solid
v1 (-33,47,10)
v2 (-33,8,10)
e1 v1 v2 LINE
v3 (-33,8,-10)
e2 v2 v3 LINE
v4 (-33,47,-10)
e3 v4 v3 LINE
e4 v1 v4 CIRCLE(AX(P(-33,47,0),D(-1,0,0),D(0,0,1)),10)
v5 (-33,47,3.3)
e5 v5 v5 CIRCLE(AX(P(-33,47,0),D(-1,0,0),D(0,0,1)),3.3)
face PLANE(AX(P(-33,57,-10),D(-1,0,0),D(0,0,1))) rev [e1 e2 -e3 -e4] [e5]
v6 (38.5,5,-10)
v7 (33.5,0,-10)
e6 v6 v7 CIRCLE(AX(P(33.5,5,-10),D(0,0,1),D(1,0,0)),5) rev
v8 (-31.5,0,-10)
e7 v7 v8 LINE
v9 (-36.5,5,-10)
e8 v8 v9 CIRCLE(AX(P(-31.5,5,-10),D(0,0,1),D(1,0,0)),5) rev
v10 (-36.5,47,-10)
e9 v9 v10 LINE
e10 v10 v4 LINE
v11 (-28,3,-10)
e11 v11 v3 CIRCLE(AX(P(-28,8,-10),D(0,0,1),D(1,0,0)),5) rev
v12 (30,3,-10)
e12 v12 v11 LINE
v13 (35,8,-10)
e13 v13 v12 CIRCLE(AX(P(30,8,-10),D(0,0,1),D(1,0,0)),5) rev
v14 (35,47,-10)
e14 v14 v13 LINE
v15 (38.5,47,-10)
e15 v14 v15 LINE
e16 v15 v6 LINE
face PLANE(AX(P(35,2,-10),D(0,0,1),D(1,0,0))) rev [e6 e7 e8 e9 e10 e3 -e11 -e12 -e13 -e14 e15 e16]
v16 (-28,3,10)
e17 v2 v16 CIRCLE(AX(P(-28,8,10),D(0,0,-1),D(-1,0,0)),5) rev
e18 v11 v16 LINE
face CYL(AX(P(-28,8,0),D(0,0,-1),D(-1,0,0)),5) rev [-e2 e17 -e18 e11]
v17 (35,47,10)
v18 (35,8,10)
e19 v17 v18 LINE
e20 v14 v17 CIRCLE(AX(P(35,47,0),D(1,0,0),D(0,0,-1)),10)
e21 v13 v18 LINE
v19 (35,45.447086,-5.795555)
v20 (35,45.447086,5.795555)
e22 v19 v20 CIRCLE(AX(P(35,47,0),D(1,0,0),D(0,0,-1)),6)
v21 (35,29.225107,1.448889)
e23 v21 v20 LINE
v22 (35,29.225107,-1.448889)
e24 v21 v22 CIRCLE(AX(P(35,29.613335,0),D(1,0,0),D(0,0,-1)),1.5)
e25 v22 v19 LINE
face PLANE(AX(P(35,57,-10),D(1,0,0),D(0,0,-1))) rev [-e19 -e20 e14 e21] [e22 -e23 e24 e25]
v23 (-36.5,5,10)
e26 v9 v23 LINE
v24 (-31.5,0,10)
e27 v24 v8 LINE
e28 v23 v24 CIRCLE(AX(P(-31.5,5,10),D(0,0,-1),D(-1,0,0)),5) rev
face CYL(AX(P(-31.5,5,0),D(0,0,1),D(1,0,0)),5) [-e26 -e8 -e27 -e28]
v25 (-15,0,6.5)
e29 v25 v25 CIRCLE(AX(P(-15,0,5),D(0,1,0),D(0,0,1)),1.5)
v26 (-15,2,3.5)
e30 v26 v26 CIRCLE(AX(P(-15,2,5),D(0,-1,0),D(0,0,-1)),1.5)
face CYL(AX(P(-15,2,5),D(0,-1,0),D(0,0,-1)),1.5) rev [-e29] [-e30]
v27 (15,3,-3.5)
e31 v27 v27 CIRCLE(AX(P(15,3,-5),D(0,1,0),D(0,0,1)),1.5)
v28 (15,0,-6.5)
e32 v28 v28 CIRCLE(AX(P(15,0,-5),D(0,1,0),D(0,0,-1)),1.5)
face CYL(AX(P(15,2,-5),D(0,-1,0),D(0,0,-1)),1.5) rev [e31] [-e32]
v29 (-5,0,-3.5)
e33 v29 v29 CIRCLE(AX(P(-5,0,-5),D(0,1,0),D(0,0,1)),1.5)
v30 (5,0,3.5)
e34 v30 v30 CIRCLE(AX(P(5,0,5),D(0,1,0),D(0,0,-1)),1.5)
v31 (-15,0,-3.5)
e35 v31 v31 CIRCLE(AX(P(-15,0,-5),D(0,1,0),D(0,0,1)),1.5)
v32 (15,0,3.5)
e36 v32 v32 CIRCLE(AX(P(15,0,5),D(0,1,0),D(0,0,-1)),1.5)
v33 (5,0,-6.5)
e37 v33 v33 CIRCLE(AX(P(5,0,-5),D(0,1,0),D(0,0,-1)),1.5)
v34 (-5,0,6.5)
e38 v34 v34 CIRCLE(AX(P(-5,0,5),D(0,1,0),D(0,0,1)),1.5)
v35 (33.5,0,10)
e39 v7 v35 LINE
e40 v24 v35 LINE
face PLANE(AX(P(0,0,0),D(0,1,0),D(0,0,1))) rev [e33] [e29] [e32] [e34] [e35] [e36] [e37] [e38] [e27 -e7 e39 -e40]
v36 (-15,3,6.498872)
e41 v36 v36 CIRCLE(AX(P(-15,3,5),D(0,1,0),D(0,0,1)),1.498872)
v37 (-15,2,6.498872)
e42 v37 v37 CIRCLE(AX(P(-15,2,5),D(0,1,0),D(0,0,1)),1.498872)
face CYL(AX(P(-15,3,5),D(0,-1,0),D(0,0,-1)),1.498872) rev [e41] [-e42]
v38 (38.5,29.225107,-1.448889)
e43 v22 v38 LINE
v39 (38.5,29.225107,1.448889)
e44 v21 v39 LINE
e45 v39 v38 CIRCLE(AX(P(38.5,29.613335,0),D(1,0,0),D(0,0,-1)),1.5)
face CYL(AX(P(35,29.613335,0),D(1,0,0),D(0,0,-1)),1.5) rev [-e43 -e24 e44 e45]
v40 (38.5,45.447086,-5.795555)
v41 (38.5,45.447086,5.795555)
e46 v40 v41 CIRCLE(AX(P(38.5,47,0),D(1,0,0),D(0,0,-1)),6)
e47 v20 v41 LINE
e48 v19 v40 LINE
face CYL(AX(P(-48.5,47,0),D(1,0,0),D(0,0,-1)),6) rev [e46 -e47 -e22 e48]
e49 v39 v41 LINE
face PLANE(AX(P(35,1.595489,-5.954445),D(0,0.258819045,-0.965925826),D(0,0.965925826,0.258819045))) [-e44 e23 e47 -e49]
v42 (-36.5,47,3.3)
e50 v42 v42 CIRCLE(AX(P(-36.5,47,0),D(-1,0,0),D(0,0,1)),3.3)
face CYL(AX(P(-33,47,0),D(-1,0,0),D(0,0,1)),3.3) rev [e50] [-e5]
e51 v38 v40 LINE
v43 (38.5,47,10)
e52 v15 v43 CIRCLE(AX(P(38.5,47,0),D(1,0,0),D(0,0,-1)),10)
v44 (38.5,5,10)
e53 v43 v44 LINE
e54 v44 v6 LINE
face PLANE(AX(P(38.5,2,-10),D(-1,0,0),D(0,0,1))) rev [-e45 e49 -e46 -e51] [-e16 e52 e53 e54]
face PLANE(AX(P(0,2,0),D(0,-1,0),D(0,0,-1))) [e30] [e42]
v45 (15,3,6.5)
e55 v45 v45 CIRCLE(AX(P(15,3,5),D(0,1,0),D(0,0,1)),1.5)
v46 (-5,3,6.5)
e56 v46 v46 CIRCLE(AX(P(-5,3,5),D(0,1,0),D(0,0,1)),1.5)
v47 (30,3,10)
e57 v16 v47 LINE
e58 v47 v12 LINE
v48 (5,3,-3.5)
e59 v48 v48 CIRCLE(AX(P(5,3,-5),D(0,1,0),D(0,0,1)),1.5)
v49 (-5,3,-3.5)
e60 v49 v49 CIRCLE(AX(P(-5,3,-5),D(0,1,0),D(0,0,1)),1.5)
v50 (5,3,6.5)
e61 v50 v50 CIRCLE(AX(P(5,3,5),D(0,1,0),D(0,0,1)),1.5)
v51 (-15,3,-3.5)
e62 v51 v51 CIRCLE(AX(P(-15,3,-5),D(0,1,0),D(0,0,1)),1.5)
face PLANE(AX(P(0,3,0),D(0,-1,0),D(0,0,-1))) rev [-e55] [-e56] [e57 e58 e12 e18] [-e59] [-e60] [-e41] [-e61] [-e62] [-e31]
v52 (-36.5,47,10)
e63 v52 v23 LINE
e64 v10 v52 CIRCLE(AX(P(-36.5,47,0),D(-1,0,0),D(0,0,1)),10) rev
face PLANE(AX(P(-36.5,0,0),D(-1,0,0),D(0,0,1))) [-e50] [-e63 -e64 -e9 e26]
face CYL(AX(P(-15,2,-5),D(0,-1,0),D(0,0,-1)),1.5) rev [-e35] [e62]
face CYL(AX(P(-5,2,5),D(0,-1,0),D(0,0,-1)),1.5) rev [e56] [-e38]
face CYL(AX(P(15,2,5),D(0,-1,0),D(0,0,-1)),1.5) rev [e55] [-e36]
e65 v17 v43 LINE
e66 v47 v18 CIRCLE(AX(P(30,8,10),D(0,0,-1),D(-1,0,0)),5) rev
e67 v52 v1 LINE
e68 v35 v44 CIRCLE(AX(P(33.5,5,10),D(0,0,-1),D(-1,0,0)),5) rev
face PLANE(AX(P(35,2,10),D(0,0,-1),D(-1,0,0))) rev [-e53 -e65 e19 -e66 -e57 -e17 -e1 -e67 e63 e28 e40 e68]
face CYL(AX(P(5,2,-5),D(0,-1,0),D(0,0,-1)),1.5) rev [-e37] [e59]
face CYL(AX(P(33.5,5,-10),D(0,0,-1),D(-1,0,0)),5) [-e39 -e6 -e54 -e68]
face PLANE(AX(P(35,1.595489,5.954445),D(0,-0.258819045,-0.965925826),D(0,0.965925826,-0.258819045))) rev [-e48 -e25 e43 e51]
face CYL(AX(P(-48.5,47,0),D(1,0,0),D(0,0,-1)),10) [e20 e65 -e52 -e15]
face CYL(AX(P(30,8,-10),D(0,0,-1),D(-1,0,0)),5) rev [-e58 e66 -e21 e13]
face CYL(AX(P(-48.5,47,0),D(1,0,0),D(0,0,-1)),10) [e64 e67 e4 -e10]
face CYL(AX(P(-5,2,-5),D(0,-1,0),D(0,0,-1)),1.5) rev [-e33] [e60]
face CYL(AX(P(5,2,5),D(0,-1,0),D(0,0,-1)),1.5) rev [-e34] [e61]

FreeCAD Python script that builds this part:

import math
import FreeCAD as App
import Part
import Sketcher

V = App.Vector
Q = App.Units.Quantity


def edges_at(feature, points):
    """Names of the edges that pass closest to the given points."""
    edges = feature.Shape.Edges
    near = lambda p: min(range(len(edges)), key=lambda i: edges[i].distToShape(Part.Vertex(*p))[0])
    return sorted({f"Edge{near(p) + 1}" for p in points})

doc = App.newDocument("Part")
body = doc.addObject("PartDesign::Body", "Body")

# Sketch on XZ plane
sketch1 = body.newObject("Sketcher::SketchObject", "Sketch")
sketch1.AttachmentSupport = (doc.getObject("XZ_Plane"), [""])
sketch1.MapMode = "FlatFace"
sketch1.addGeometry([
    Part.LineSegment(V(-35, 10, 0), V(38.5, 10, 0)),  # 0
    Part.LineSegment(V(38.5, 10, 0), V(38.5, -10, 0)),  # 1
    Part.LineSegment(V(38.5, -10, 0), V(-35, -10, 0)),  # 2
    Part.LineSegment(V(-35, -10, 0), V(-35, 10, 0)),  # 3
    Part.Circle(V(15, 5, 0), V(0, 0, 1), 1.5),  # 4
    Part.Circle(V(5, 5, 0), V(0, 0, 1), 1.5),  # 5
    Part.Circle(V(-5, 5, 0), V(0, 0, 1), 1.5),  # 6
    Part.Circle(V(-15, 5, 0), V(0, 0, 1), 1.5),  # 7
    Part.Circle(V(15, -5, 0), V(0, 0, 1), 1.5),  # 8
    Part.Circle(V(5, -5, 0), V(0, 0, 1), 1.5),  # 9
    Part.Circle(V(-5, -5, 0), V(0, 0, 1), 1.5),  # 10
    Part.Circle(V(-15, -5, 0), V(0, 0, 1), 1.5),  # 11
], False)
sketch1.addConstraint([
    Sketcher.Constraint("Coincident", 0, 2, 1, 1),
    Sketcher.Constraint("Coincident", 1, 2, 2, 1),
    Sketcher.Constraint("Coincident", 2, 2, 3, 1),
    Sketcher.Constraint("Coincident", 3, 2, 0, 1),
    Sketcher.Constraint("Horizontal", 0),
    Sketcher.Constraint("Vertical", 1),
    Sketcher.Constraint("Horizontal", 2),
    Sketcher.Constraint("Vertical", 3),
    Sketcher.Constraint("Equal", 4, 5),
    Sketcher.Constraint("Equal", 5, 6),
    Sketcher.Constraint("Equal", 6, 7),
    Sketcher.Constraint("Equal", 7, 8),
    Sketcher.Constraint("Equal", 8, 9),
    Sketcher.Constraint("Equal", 9, 10),
    Sketcher.Constraint("Equal", 10, 11),
    Sketcher.Constraint("Symmetric", 7, 3, 8, 3, -1, 1),
    Sketcher.Constraint("Symmetric", 6, 3, 9, 3, -1, 1),
    Sketcher.Constraint("Symmetric", 5, 3, 10, 3, -1, 1),
    Sketcher.Constraint("Symmetric", 4, 3, 11, 3, -1, 1),
    Sketcher.Constraint("Symmetric", 5, 3, 6, 3, -2),
    Sketcher.Constraint("Symmetric", 4, 3, 7, 3, -2),
    Sketcher.Constraint("Horizontal", 4, 3, 5, 3),
    Sketcher.Constraint("Diameter", 4, Q("3 mm")),
    Sketcher.Constraint("DistanceY", 1, 2, 1, 1, Q("20 mm")),
    Sketcher.Constraint("DistanceX", 0, 1, 0, 2, Q("73.5 mm")),
    Sketcher.Constraint("DistanceX", -1, 1, 4, 3, Q("15 mm")),
    Sketcher.Constraint("DistanceY", -1, 1, 4, 3, Q("5 mm")),
    Sketcher.Constraint("DistanceX", -1, 1, 5, 3, Q("5 mm")),
    Sketcher.Constraint("DistanceY", -1, 1, 0, 2, Q("10 mm")),
    Sketcher.Constraint("DistanceX", 2, 2, -1, 1, Q("35 mm")),
])
pad1 = body.newObject("PartDesign::Pad", "Pad")
pad1.Profile = sketch1
pad1.Length = 2
pad1.Reversed = True

# Sketch on XZ plane
sketch2 = body.newObject("Sketcher::SketchObject", "Sketch001")
sketch2.AttachmentSupport = (doc.getObject("XZ_Plane"), [""])
sketch2.MapMode = "FlatFace"
sketch2.AttachmentOffset = App.Placement(V(0, 0, -2), App.Rotation())
sketch2.addGeometry([
    Part.LineSegment(V(-35, -10, 0), V(-35, 10, 0)),  # 0
    Part.LineSegment(V(-35, 10, 0), V(-33, 10, 0)),  # 1
    Part.LineSegment(V(-33, 10, 0), V(-33, -10, 0)),  # 2
    Part.LineSegment(V(-33, -10, 0), V(-35, -10, 0)),  # 3
    Part.LineSegment(V(35, -10, 0), V(35, 10, 0)),  # 4
    Part.LineSegment(V(35, 10, 0), V(38.5, 10, 0)),  # 5
    Part.LineSegment(V(38.5, 10, 0), V(38.5, -10, 0)),  # 6
    Part.LineSegment(V(38.5, -10, 0), V(35, -10, 0)),  # 7
], False)
sketch2.addConstraint([
    Sketcher.Constraint("Coincident", 0, 2, 1, 1),
    Sketcher.Constraint("Coincident", 1, 2, 2, 1),
    Sketcher.Constraint("Coincident", 2, 2, 3, 1),
    Sketcher.Constraint("Coincident", 3, 2, 0, 1),
    Sketcher.Constraint("Coincident", 4, 2, 5, 1),
    Sketcher.Constraint("Coincident", 5, 2, 6, 1),
    Sketcher.Constraint("Coincident", 6, 2, 7, 1),
    Sketcher.Constraint("Coincident", 7, 2, 4, 1),
    Sketcher.Constraint("Vertical", 0),
    Sketcher.Constraint("Horizontal", 1),
    Sketcher.Constraint("Vertical", 2),
    Sketcher.Constraint("Horizontal", 3),
    Sketcher.Constraint("Vertical", 4),
    Sketcher.Constraint("Horizontal", 5),
    Sketcher.Constraint("Vertical", 6),
    Sketcher.Constraint("Horizontal", 7),
    Sketcher.Constraint("Symmetric", 3, 2, 4, 2, -1, 1),
    Sketcher.Constraint("Horizontal", 1, 2, 4, 2),
    Sketcher.Constraint("Horizontal", 3, 2, 6, 2),
    Sketcher.Constraint("DistanceX", 1, 1, 1, 2, Q("2 mm")),
    Sketcher.Constraint("DistanceY", 0, 1, 0, 2, Q("20 mm")),
    Sketcher.Constraint("DistanceX", 5, 1, 5, 2, Q("3.5 mm")),
    Sketcher.Constraint("DistanceX", 0, 2, -1, 1, Q("35 mm")),
])
pad2 = body.newObject("PartDesign::Pad", "Pad001")
pad2.Profile = sketch2
pad2.Length = 55
pad2.Reversed = True

# Sketch on YZ plane
sketch3 = body.newObject("Sketcher::SketchObject", "Sketch002")
sketch3.AttachmentSupport = (doc.getObject("YZ_Plane"), [""])
sketch3.MapMode = "FlatFace"
sketch3.AttachmentOffset = App.Placement(V(0, 0, 38.5), App.Rotation())
sketch3.addGeometry([
    Part.LineSegment(V(57, -10, 0), V(57, 0, 0)),  # 0
    Part.ArcOfCircle(Part.Circle(V(47, 0, 0), V(0, 0, 1), 10), math.radians(-90), math.radians(0)),  # 1
    Part.LineSegment(V(47, -10, 0), V(57, -10, 0)),  # 2
    Part.LineSegment(V(57, 10, 0), V(47, 10, 0)),  # 3
    Part.ArcOfCircle(Part.Circle(V(47, 0, 0), V(0, 0, 1), 10), math.radians(0), math.radians(90)),  # 4
    Part.LineSegment(V(57, 0, 0), V(57, 10, 0)),  # 5
    Part.Circle(V(47, 0, 0), V(0, 0, 1), 6),  # 6
], False)
sketch3.addConstraint([
    Sketcher.Constraint("Tangent", 0, 2, 1, 2),
    Sketcher.Constraint("Tangent", 1, 1, 2, 1),
    Sketcher.Constraint("Coincident", 2, 2, 0, 1),
    Sketcher.Constraint("Tangent", 3, 2, 4, 2),
    Sketcher.Constraint("Tangent", 4, 1, 5, 1),
    Sketcher.Constraint("Coincident", 5, 2, 3, 1),
    Sketcher.Constraint("Vertical", 0),
    Sketcher.Constraint("Horizontal", 2),
    Sketcher.Constraint("Horizontal", 3),
    Sketcher.Constraint("Vertical", 5),
    Sketcher.Constraint("Coincident", 4, 3, 1, 3),
    Sketcher.Constraint("Coincident", 6, 3, 1, 3),
    Sketcher.Constraint("Equal", 1, 4),
    Sketcher.Constraint("PointOnObject", 1, 3, -1),
    Sketcher.Constraint("Diameter", 6, Q("12 mm")),
    Sketcher.Constraint("Radius", 1, Q("10 mm")),
    Sketcher.Constraint("DistanceX", -1, 1, 1, 3, Q("47 mm")),
])
pocket1 = body.newObject("PartDesign::Pocket", "Pocket")
pocket1.Profile = sketch3
pocket1.Length = 87

# Sketch on YZ plane
sketch4 = body.newObject("Sketcher::SketchObject", "Sketch003")
sketch4.AttachmentSupport = (doc.getObject("YZ_Plane"), [""])
sketch4.MapMode = "FlatFace"
sketch4.AttachmentOffset = App.Placement(V(0, 0, -35), App.Rotation())
sketch4.addGeometry([
    Part.Circle(V(47, 0, 0), V(0, 0, 1), 6),
    Part.Circle(V(47, 0, 0), V(0, 0, 1), 3.3),
], False)
sketch4.addConstraint([
    Sketcher.Constraint("Coincident", 1, 3, 0, 3),
    Sketcher.Constraint("PointOnObject", 0, 3, -1),
    Sketcher.Constraint("Diameter", 0, Q("12 mm")),
    Sketcher.Constraint("Diameter", 1, Q("6.6 mm")),
    Sketcher.Constraint("DistanceX", -1, 1, 0, 3, Q("47 mm")),
])
pad3 = body.newObject("PartDesign::Pad", "Pad002")
pad3.Profile = sketch4
pad3.Length = 2

# Sketch on YZ plane
sketch5 = body.newObject("Sketcher::SketchObject", "Sketch004")
sketch5.AttachmentSupport = (doc.getObject("YZ_Plane"), [""])
sketch5.MapMode = "FlatFace"
sketch5.AttachmentOffset = App.Placement(V(0, 0, -35), App.Rotation())
sketch5.addGeometry([
    Part.ArcOfCircle(Part.Circle(V(47, 0, 0), V(0, 0, 1), 10), math.radians(-90), math.radians(90)),  # 0
    Part.LineSegment(V(47, -10, 0), V(0, -10, 0)),  # 1
    Part.LineSegment(V(0, -10, 0), V(0, 10, 0)),  # 2
    Part.LineSegment(V(0, 10, 0), V(47, 10, 0)),  # 3
    Part.Circle(V(47, 0, 0), V(0, 0, 1), 3.3),  # 4
], False)
sketch5.addConstraint([
    Sketcher.Constraint("Tangent", 0, 1, 1, 1),
    Sketcher.Constraint("Coincident", 1, 2, 2, 1),
    Sketcher.Constraint("Coincident", 2, 2, 3, 1),
    Sketcher.Constraint("Tangent", 3, 2, 0, 2),
    Sketcher.Constraint("Horizontal", 1),
    Sketcher.Constraint("Vertical", 2),
    Sketcher.Constraint("Horizontal", 3),
    Sketcher.Constraint("Coincident", 4, 3, 0, 3),
    Sketcher.Constraint("Symmetric", 1, 2, 2, 2, -1, 1),
    Sketcher.Constraint("Radius", 0, Q("10 mm")),
    Sketcher.Constraint("Diameter", 4, Q("6.6 mm")),
    Sketcher.Constraint("DistanceX", 1, 2, 1, 1, Q("47 mm")),
])
pad4 = body.newObject("PartDesign::Pad", "Pad003")
pad4.Profile = sketch5
pad4.Length = 1.5
pad4.Reversed = True

# Sketch on XZ plane
sketch6 = body.newObject("Sketcher::SketchObject", "Sketch005")
sketch6.AttachmentSupport = (doc.getObject("XZ_Plane"), [""])
sketch6.MapMode = "FlatFace"
sketch6.AttachmentOffset = App.Placement(V(0, 0, -2), App.Rotation())
sketch6.addGeometry([
    Part.LineSegment(V(-33, -10, 0), V(-33, 10, 0)),  # 0
    Part.LineSegment(V(-33, 10, 0), V(35, 10, 0)),  # 1
    Part.LineSegment(V(35, 10, 0), V(35, -10, 0)),  # 2
    Part.LineSegment(V(35, -10, 0), V(-33, -10, 0)),  # 3
    Part.Circle(V(-15, 5, 0), V(0, 0, 1), 1.5),  # 4
    Part.Circle(V(-5, 5, 0), V(0, 0, 1), 1.5),  # 5
    Part.Circle(V(5, 5, 0), V(0, 0, 1), 1.5),  # 6
    Part.Circle(V(15, 5, 0), V(0, 0, 1), 1.5),  # 7
    Part.Circle(V(-15, -5, 0), V(0, 0, 1), 1.5),  # 8
    Part.Circle(V(-5, -5, 0), V(0, 0, 1), 1.5),  # 9
    Part.Circle(V(5, -5, 0), V(0, 0, 1), 1.5),  # 10
    Part.Circle(V(15, -5, 0), V(0, 0, 1), 1.5),  # 11
], False)
sketch6.addConstraint([
    Sketcher.Constraint("Coincident", 0, 2, 1, 1),
    Sketcher.Constraint("Coincident", 1, 2, 2, 1),
    Sketcher.Constraint("Coincident", 2, 2, 3, 1),
    Sketcher.Constraint("Coincident", 3, 2, 0, 1),
    Sketcher.Constraint("Vertical", 0),
    Sketcher.Constraint("Horizontal", 1),
    Sketcher.Constraint("Vertical", 2),
    Sketcher.Constraint("Horizontal", 3),
    Sketcher.Constraint("Equal", 5, 6),
    Sketcher.Constraint("Equal", 6, 7),
    Sketcher.Constraint("Equal", 7, 8),
    Sketcher.Constraint("Equal", 8, 9),
    Sketcher.Constraint("Equal", 9, 10),
    Sketcher.Constraint("Equal", 10, 11),
    Sketcher.Constraint("Symmetric", 7, 3, 8, 3, -1, 1),
    Sketcher.Constraint("Symmetric", 6, 3, 9, 3, -1, 1),
    Sketcher.Constraint("Symmetric", 5, 3, 10, 3, -1, 1),
    Sketcher.Constraint("Symmetric", 4, 3, 11, 3, -1, 1),
    Sketcher.Constraint("Symmetric", 5, 3, 6, 3, -2),
    Sketcher.Constraint("Symmetric", 4, 3, 7, 3, -2),
    Sketcher.Constraint("Horizontal", 4, 3, 5, 3),
    Sketcher.Constraint("Diameter", 5, Q("3 mm")),
    Sketcher.Constraint("DistanceX", 1, 1, 1, 2, Q("68 mm")),
    Sketcher.Constraint("DistanceY", 0, 1, 0, 2, Q("20 mm")),
    Sketcher.Constraint("DistanceX", 4, 3, -1, 1, Q("15 mm")),
    Sketcher.Constraint("DistanceY", -1, 1, 4, 3, Q("5 mm")),
    Sketcher.Constraint("DistanceX", 5, 3, -1, 1, Q("5 mm")),
    Sketcher.Constraint("DistanceX", 0, 2, -1, 1, Q("33 mm")),
    Sketcher.Constraint("DistanceY", -1, 1, 0, 2, Q("10 mm")),
    Sketcher.Constraint("Diameter", 4, Q("2.997743 mm")),
])
pad5 = body.newObject("PartDesign::Pad", "Pad004")
pad5.Profile = sketch6
pad5.Length = 1
pad5.Reversed = True
doc.recompute()

fillet = body.newObject("PartDesign::Fillet", "Fillet")
fillet.Base = (pad5, edges_at(pad5, [(-33, 3, 0)]))
fillet.Radius = 5
doc.recompute()

fillet2 = body.newObject("PartDesign::Fillet", "Fillet001")
fillet2.Base = (fillet, edges_at(fillet, [(35, 3, 0)]))
fillet2.Radius = 5
doc.recompute()

fillet3 = body.newObject("PartDesign::Fillet", "Fillet002")
fillet3.Base = (fillet2, edges_at(fillet2, [(-36.5, 0, 0), (38.5, 0, 0)]))
fillet3.Radius = 5

# Sketch on YZ plane
sketch7 = body.newObject("Sketcher::SketchObject", "Sketch006")
sketch7.AttachmentSupport = (doc.getObject("YZ_Plane"), [""])
sketch7.MapMode = "FlatFace"
sketch7.AttachmentOffset = App.Placement(V(0, 0, 38.5), App.Rotation())
sketch7.addGeometry([
    Part.ArcOfCircle(Part.Circle(V(29.6, 0, 0), V(0, 0, 1), 1.5), math.radians(105), math.radians(255)),
    Part.LineSegment(V(29.2, -1.4, 0), V(45.4, -5.8, 0)),
    Part.ArcOfCircle(Part.Circle(V(47, 0, 0), V(0, 0, 1), 6), math.radians(105), math.radians(255)),
    Part.LineSegment(V(45.4, 5.8, 0), V(29.2, 1.4, 0)),
], False)
sketch7.addConstraint([
    Sketcher.Constraint("Tangent", 0, 2, 1, 1),
    Sketcher.Constraint("Tangent", 1, 2, 2, 2),
    Sketcher.Constraint("Tangent", 2, 1, 3, 1),
    Sketcher.Constraint("Tangent", 3, 2, 0, 1),
    Sketcher.Constraint("Symmetric", 1, 2, 2, 1, -1),
    Sketcher.Constraint("Radius", 2, Q("6 mm")),
    Sketcher.Constraint("Radius", 0, Q("1.5 mm")),
    Sketcher.Constraint("Angle", 1, Q("-15 deg")),
    Sketcher.Constraint("DistanceX", -1, 1, 2, 3, Q("47 mm")),
])
pocket2 = body.newObject("PartDesign::Pocket", "Pocket001")
pocket2.Profile = sketch7
pocket2.Length = 3.5

doc.recompute()
